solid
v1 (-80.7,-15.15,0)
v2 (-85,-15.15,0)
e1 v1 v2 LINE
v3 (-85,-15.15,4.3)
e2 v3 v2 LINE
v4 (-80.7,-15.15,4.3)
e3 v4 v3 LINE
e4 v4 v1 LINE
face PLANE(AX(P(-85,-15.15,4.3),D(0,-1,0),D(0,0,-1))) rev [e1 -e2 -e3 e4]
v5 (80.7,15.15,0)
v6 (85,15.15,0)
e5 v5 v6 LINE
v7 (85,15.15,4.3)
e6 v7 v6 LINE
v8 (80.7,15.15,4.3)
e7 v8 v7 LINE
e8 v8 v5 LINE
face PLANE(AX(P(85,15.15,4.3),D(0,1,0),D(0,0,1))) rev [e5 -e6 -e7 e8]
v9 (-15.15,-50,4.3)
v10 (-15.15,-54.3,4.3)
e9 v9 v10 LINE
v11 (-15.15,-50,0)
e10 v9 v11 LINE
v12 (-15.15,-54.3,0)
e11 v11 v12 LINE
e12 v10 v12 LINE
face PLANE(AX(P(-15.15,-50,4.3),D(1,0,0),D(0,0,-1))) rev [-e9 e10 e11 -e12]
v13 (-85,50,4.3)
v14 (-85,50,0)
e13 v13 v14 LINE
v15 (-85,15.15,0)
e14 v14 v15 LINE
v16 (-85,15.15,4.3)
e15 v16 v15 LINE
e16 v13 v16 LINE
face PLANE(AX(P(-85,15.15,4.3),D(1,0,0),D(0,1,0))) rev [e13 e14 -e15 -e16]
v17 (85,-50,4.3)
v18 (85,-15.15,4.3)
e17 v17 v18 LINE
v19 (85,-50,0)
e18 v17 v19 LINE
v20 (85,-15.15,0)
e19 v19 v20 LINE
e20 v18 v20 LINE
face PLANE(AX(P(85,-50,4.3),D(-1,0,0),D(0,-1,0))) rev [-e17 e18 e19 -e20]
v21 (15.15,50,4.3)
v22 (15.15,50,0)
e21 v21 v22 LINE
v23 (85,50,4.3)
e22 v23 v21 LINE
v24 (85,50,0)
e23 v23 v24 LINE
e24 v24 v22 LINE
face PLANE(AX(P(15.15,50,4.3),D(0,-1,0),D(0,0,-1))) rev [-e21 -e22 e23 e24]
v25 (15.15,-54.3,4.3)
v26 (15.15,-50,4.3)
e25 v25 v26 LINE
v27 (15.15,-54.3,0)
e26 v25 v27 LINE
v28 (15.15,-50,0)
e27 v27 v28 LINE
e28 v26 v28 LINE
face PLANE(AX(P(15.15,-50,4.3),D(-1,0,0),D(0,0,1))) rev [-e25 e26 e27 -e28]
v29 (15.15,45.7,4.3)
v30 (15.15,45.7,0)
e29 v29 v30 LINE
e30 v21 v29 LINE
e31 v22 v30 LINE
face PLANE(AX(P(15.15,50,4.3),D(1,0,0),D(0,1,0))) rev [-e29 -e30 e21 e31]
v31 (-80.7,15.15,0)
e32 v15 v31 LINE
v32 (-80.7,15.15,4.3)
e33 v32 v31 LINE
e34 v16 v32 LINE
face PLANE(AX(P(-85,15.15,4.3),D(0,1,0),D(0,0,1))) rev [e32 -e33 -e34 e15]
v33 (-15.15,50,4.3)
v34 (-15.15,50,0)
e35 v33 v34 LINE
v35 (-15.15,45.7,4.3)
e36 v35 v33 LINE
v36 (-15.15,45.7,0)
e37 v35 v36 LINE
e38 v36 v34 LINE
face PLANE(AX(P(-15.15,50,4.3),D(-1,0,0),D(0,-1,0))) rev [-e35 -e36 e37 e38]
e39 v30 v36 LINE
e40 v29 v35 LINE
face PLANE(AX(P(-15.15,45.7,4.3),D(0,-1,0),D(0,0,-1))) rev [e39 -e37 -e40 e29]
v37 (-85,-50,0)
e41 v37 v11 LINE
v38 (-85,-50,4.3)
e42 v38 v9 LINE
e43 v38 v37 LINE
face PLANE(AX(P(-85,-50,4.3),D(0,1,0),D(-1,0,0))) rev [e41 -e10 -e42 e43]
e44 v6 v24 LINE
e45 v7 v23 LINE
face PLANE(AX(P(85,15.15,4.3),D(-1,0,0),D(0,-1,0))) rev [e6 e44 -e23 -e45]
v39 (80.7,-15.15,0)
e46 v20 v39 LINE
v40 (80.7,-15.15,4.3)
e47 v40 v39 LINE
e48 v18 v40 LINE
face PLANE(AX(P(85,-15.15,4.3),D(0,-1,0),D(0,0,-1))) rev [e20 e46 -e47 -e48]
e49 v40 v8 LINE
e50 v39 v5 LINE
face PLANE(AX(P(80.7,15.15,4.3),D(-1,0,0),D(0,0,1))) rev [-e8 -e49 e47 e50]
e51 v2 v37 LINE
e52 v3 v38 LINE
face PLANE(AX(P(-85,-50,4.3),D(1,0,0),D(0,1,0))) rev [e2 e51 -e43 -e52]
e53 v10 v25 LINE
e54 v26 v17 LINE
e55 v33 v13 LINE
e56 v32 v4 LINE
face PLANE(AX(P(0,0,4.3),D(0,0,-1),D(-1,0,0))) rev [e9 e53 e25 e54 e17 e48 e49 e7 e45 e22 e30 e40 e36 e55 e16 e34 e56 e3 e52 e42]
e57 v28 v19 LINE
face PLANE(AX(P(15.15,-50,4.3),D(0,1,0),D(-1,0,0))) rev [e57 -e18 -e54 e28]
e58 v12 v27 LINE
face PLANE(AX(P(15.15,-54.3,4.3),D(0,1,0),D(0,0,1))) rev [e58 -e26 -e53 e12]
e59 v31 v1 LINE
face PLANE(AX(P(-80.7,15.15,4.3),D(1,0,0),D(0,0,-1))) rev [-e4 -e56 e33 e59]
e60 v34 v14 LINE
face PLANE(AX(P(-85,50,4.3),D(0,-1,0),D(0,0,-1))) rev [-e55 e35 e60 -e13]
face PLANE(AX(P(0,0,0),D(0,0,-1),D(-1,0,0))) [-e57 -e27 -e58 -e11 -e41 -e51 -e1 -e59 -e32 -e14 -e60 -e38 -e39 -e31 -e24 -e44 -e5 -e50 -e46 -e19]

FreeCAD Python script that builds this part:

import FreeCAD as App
import Part
import Sketcher
from FreeCAD import Vector
Q = App.Units.Quantity


def add_polygon(sketch, points):
    """Adds a closed chain of lines whose ends are joined by coincident constraints."""
    first, n = sketch.GeometryCount, len(points)
    for a, b in zip(points, points[1:] + points[:1]):
        sketch.addGeometry(Part.LineSegment(App.Vector(*a, 0), App.Vector(*b, 0)), False)
    for i in range(n):
        sketch.addConstraint(Sketcher.Constraint("Coincident", first + i, 2, first + (i + 1) % n, 1))

doc = App.newDocument("Part")
body = doc.addObject("PartDesign::Body", "Body")

sketch1 = body.newObject("Sketcher::SketchObject", "Sketch")
sketch1.AttachmentSupport = (doc.getObject("XY_Plane"), [""])
sketch1.MapMode = "FlatFace"
add_polygon(sketch1, [(-85, 50), (-85, 15.2), (-80.7, 15.2), (-80.7, -15.2), (-85, -15.2), (-85, -50), (-15.2, -50), (-15.2, -54.3), (15.2, -54.3), (15.2, -50), (85, -50), (85, -15.2), (80.7, -15.2), (80.7, 15.2), (85, 15.2), (85, 50), (15.2, 50), (15.2, 45.7), (-15.2, 45.7), (-15.2, 50)])
sketch1.addConstraint([
    Sketcher.Constraint("Vertical", 0),
    Sketcher.Constraint("Horizontal", 1),
    Sketcher.Constraint("Vertical", 2),
    Sketcher.Constraint("Horizontal", 3),
    Sketcher.Constraint("Vertical", 4),
    Sketcher.Constraint("Horizontal", 5),
    Sketcher.Constraint("Vertical", 6),
    Sketcher.Constraint("Horizontal", 7),
    Sketcher.Constraint("Vertical", 8),
    Sketcher.Constraint("Horizontal", 9),
    Sketcher.Constraint("Vertical", 10),
    Sketcher.Constraint("Horizontal", 11),
    Sketcher.Constraint("Vertical", 12),
    Sketcher.Constraint("Horizontal", 13),
    Sketcher.Constraint("Vertical", 14),
    Sketcher.Constraint("Horizontal", 15),
    Sketcher.Constraint("Vertical", 16),
    Sketcher.Constraint("Horizontal", 17),
    Sketcher.Constraint("Vertical", 18),
    Sketcher.Constraint("Horizontal", 19),
    Sketcher.Constraint("Symmetric", 0, 2, 10, 2, -1, 1),
    Sketcher.Constraint("Symmetric", 2, 2, 12, 2, -1, 1),
    Sketcher.Constraint("Symmetric", 4, 2, 14, 2, -1, 1),
    Sketcher.Constraint("Symmetric", 8, 2, 18, 2, -1, 1),
    Sketcher.Constraint("Symmetric", 5, 2, 8, 2, -2),
    Sketcher.Constraint("Symmetric", 3, 2, 10, 2, -2),
    Sketcher.Constraint("Vertical", 8, 2, 15, 2),
    Sketcher.Constraint("Equal", 17, 2),
    Sketcher.Constraint("Equal", 13, 6),
    Sketcher.Constraint("Equal", 8, 16),
    Sketcher.Constraint("DistanceX", 1, 1, 1, 2, Q("4.3 mm")),
    Sketcher.Constraint("DistanceX", 7, 1, 7, 2, Q("30.3 mm")),
    Sketcher.Constraint("DistanceX", 0, 2, -1, 1, Q("85 mm")),
    Sketcher.Constraint("DistanceY", 4, 2, -1, 1, Q("50 mm")),
])
pad1 = body.newObject("PartDesign::Pad", "Pad")
pad1.Profile = sketch1
pad1.Length = 4.3

doc.recompute()
